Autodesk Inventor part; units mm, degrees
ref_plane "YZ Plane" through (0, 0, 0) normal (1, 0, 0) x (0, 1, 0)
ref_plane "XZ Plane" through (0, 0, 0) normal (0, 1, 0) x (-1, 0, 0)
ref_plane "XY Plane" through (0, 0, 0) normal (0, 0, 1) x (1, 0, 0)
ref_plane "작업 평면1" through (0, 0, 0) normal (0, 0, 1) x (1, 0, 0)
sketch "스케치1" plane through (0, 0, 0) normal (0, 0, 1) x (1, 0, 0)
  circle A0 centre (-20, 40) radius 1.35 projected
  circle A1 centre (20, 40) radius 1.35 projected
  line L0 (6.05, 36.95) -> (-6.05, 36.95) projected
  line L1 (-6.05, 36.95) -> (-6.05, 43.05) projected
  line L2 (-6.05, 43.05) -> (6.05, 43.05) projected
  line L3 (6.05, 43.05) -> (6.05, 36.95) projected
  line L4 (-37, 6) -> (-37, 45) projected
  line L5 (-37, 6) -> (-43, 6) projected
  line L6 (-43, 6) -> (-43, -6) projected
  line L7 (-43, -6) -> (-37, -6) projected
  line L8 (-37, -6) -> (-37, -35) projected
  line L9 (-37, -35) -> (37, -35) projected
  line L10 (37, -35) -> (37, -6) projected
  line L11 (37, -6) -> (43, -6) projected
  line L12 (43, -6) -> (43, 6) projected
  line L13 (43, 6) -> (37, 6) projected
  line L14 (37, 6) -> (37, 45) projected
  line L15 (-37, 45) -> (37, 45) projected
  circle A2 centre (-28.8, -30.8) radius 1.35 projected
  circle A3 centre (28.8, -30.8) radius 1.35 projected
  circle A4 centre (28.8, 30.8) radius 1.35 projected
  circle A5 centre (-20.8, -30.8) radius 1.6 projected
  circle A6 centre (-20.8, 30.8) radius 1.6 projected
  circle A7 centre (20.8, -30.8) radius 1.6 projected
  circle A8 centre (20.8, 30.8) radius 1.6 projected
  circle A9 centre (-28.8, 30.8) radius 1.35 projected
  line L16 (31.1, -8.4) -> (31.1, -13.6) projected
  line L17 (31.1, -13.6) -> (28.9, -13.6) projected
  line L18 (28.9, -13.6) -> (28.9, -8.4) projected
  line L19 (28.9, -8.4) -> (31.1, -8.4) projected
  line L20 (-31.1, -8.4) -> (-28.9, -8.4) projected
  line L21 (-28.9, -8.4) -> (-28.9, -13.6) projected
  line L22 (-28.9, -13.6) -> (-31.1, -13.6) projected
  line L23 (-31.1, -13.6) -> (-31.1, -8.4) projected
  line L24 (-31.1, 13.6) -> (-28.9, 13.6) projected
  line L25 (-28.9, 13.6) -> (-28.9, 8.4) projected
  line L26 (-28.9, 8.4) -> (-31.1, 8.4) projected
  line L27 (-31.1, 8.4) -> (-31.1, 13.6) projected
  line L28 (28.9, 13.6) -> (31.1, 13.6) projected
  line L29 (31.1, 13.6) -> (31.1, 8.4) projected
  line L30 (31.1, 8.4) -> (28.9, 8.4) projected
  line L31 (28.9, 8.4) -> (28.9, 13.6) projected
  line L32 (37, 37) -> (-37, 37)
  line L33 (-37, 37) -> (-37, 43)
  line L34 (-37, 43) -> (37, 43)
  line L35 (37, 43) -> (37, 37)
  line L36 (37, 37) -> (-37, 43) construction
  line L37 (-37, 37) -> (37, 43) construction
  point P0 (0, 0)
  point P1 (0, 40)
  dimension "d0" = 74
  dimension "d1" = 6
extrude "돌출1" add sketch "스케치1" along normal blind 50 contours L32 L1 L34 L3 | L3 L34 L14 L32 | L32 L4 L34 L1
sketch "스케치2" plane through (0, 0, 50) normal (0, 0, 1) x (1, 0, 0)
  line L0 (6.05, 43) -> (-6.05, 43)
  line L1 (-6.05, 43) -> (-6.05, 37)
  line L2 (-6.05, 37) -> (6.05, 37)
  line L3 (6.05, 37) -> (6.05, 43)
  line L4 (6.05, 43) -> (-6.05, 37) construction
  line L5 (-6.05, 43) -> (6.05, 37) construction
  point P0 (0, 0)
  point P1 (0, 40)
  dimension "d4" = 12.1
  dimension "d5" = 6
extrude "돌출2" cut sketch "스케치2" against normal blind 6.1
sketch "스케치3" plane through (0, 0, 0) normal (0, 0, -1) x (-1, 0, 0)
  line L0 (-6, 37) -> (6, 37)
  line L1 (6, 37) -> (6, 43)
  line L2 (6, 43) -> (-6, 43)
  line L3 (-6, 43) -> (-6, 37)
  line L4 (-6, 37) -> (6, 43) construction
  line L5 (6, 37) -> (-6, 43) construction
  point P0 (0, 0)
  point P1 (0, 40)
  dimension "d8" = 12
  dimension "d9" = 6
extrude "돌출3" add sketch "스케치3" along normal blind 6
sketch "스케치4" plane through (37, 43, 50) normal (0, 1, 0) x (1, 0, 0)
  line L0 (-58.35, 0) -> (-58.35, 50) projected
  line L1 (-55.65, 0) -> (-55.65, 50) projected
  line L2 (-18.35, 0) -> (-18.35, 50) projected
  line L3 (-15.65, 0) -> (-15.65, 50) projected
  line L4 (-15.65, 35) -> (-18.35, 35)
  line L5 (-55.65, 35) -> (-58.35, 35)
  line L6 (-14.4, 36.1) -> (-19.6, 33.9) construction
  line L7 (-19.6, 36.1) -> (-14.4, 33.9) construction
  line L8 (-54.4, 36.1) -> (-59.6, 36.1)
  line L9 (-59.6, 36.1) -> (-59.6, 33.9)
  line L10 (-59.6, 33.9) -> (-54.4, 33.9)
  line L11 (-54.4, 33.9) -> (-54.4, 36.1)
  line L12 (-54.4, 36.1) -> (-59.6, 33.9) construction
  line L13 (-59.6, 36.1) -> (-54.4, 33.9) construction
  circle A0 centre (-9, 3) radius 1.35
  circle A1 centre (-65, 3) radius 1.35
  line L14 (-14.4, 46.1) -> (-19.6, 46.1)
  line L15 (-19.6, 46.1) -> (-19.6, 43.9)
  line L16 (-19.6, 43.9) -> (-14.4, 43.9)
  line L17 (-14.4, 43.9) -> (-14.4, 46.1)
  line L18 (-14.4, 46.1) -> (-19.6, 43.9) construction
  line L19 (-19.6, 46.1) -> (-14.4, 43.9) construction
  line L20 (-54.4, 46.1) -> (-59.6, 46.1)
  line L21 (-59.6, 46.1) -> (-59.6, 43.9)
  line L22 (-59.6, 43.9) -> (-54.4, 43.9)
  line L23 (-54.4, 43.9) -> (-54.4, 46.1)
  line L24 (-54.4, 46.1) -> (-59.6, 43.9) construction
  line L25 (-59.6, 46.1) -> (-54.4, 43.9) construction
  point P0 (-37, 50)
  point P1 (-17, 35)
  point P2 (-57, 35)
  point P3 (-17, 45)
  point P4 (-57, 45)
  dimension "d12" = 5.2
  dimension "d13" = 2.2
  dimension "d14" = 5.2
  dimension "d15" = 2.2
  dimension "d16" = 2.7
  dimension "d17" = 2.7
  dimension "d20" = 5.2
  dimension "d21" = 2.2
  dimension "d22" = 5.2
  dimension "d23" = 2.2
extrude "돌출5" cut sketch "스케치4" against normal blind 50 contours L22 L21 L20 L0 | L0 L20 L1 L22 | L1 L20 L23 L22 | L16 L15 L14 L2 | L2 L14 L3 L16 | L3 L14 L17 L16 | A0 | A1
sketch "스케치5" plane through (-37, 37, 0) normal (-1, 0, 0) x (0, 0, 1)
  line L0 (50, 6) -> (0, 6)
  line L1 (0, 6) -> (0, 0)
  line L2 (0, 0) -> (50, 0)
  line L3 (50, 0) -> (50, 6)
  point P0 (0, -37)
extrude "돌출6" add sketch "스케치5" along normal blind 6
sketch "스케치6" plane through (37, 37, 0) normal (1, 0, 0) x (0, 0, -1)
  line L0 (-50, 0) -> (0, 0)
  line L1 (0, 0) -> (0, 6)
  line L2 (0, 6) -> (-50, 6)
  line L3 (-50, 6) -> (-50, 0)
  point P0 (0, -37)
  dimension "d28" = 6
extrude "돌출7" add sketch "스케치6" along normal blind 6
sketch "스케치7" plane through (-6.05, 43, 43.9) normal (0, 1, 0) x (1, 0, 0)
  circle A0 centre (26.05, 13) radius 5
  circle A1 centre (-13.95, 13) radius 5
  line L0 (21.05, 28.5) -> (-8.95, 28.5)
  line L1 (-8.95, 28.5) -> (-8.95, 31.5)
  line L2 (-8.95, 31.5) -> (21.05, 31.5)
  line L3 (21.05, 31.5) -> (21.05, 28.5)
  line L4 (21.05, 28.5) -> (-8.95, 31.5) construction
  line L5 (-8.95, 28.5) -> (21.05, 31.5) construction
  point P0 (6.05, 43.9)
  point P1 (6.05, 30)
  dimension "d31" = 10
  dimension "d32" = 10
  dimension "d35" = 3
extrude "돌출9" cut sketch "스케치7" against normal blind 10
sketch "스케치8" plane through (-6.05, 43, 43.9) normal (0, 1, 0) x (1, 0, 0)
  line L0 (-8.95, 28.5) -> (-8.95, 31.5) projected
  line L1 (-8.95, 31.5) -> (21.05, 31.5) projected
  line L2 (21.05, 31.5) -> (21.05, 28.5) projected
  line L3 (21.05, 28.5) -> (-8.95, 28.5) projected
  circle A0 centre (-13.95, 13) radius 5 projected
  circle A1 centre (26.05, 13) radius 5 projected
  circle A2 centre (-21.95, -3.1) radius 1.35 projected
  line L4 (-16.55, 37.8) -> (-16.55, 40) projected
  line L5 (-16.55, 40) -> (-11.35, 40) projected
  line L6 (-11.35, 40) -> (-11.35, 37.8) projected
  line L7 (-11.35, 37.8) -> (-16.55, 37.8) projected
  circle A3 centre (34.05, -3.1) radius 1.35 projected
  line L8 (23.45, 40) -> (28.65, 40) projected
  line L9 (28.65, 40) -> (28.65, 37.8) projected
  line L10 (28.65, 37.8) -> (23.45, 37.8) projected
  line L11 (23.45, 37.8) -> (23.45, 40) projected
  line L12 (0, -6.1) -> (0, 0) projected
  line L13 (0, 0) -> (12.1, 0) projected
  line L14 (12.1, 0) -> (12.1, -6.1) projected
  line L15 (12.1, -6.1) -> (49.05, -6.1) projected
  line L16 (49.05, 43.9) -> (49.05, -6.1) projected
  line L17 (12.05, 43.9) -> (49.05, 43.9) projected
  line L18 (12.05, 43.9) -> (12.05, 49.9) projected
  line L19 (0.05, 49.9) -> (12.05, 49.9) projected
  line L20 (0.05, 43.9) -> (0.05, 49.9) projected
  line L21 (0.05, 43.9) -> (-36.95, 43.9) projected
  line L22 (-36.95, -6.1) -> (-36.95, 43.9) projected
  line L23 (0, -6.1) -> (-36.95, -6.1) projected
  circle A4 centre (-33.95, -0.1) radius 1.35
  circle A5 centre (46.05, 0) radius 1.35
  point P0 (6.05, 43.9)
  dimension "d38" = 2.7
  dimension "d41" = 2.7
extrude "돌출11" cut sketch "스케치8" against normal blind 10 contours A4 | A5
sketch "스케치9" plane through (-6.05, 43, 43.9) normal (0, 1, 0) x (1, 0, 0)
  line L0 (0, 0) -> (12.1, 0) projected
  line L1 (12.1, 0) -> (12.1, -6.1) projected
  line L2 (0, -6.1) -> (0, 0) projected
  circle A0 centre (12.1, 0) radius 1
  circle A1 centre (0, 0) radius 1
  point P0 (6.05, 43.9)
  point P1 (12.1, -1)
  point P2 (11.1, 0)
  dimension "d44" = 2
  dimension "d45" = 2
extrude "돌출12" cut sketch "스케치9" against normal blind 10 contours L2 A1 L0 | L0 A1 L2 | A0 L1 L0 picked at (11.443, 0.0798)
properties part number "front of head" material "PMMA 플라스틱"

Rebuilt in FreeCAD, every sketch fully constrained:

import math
import FreeCAD as App
import Part
import Sketcher


def add_polygon(sketch, points):
    """Adds a closed chain of lines whose ends are joined by coincident constraints."""
    first, n = sketch.GeometryCount, len(points)
    for a, b in zip(points, points[1:] + points[:1]):
        sketch.addGeometry(Part.LineSegment(App.Vector(*a, 0), App.Vector(*b, 0)), False)
    for i in range(n):
        sketch.addConstraint(Sketcher.Constraint("Coincident", first + i, 2, first + (i + 1) % n, 1))

doc = App.newDocument("Part")
params = doc.addObject("Spreadsheet::Sheet", "Params")
for row, (alias, value) in enumerate([
    ("sketch1_width", "74 mm"),
    ("sketch1_height", "6 mm"),
    ("sketch1_diameter", "2.7 mm"),
    ("pad1_length", "50 mm"),
    ("sketch2_height", "6 mm"),
    ("sketch2_width", "12.1 mm"),
    ("pocket1_length", "6.1 mm"),
    ("sketch3_width", "12 mm"),
    ("sketch3_height", "6 mm"),
    ("pad2_length", "6 mm"),
    ("sketch4_diameter", "2.7 mm"),
    ("sketch4_width", "5.2 mm"),
    ("sketch4_height", "2.2 mm"),
    ("pocket2_length", "50 mm"),
    ("sketch5_width", "6 mm"),
    ("sketch5_height", "50 mm"),
    ("pad3_length", "6 mm"),
    ("sketch6_width", "6 mm"),
    ("sketch6_height", "50 mm"),
    ("pad4_length", "6 mm"),
    ("sketch7_diameter", "10 mm"),
    ("sketch7_height", "3 mm"),
    ("sketch7_width", "30 mm"),
    ("pocket3_length", "10 mm"),
    ("sketch8_diameter", "2.7 mm"),
    ("pocket4_length", "10 mm"),
    ("sketch9_diameter", "2 mm"),
    ("pocket5_length", "10 mm"),
], start=1):
    params.set(f"A{row}", alias)
    params.set(f"B{row}", "=" + value)
    params.setAlias(f"B{row}", alias)

body = doc.addObject("PartDesign::Body", "Body")

sketch1 = body.newObject("Sketcher::SketchObject", "Sketch")
sketch1.AttachmentSupport = (doc.getObject("XY_Plane"), [""])
sketch1.MapMode = "FlatFace"
add_polygon(sketch1, [(37, 37), (37, 43), (-37, 43), (-37, 37)])
sketch1.addGeometry(Part.Circle(App.Vector(-20, 40, 0), App.Vector(0, 0, 1), 1.4), False)
sketch1.addGeometry(Part.Circle(App.Vector(20, 40, 0), App.Vector(0, 0, 1), 1.4), False)
sketch1.addConstraint(Sketcher.Constraint("Vertical", 0))
sketch1.addConstraint(Sketcher.Constraint("Horizontal", 1))
sketch1.addConstraint(Sketcher.Constraint("Vertical", 2))
sketch1.addConstraint(Sketcher.Constraint("Horizontal", 3))
sketch1.addConstraint(Sketcher.Constraint("Equal", 4, 5))
sketch1.addConstraint(Sketcher.Constraint("Symmetric", 4, 3, 5, 3, -2))
sketch1.addConstraint(Sketcher.Constraint("DistanceX", 1, 2, 1, 1, 74.0))
sketch1.addConstraint(Sketcher.Constraint("DistanceY", 0, 1, 0, 2, 6.0))
sketch1.addConstraint(Sketcher.Constraint("Diameter", 4, 2.7))
sketch1.addConstraint(Sketcher.Constraint("DistanceX", 4, 3, -1, 1, 20.0))
sketch1.addConstraint(Sketcher.Constraint("DistanceY", -1, 1, 4, 3, 40.0))
sketch1.addConstraint(Sketcher.Constraint("DistanceX", -1, 1, 0, 2, 37.0))
sketch1.addConstraint(Sketcher.Constraint("DistanceY", -1, 1, 0, 2, 43.0))
sketch1.setExpression("Constraints[10]", "Params.sketch1_width")
sketch1.setExpression("Constraints[11]", "Params.sketch1_height")
sketch1.setExpression("Constraints[12]", "Params.sketch1_diameter")
pad1 = body.newObject("PartDesign::Pad", "Pad")
pad1.Profile = sketch1
pad1.setExpression("Length", "Params.pad1_length")

sketch2 = body.newObject("Sketcher::SketchObject", "Sketch001")
sketch2.AttachmentSupport = (doc.getObject("XY_Plane"), [""])
sketch2.MapMode = "FlatFace"
sketch2.AttachmentOffset = App.Placement(App.Vector(0, 0, 50), App.Rotation())
add_polygon(sketch2, [(6, 37), (6, 43), (-6, 43), (-6, 37)])
sketch2.addConstraint(Sketcher.Constraint("Vertical", 0))
sketch2.addConstraint(Sketcher.Constraint("Horizontal", 1))
sketch2.addConstraint(Sketcher.Constraint("Vertical", 2))
sketch2.addConstraint(Sketcher.Constraint("Horizontal", 3))
sketch2.addConstraint(Sketcher.Constraint("DistanceY", 0, 1, 0, 2, 6.0))
sketch2.addConstraint(Sketcher.Constraint("DistanceX", 1, 2, 1, 1, 12.1))
sketch2.addConstraint(Sketcher.Constraint("DistanceY", -1, 1, 0, 2, 43.0))
sketch2.addConstraint(Sketcher.Constraint("DistanceX", -1, 1, 0, 2, 6.05))
sketch2.setExpression("Constraints[8]", "Params.sketch2_height")
sketch2.setExpression("Constraints[9]", "Params.sketch2_width")
pocket1 = body.newObject("PartDesign::Pocket", "Pocket")
pocket1.Profile = sketch2
pocket1.setExpression("Length", "Params.pocket1_length")

sketch3 = body.newObject("Sketcher::SketchObject", "Sketch002")
sketch3.AttachmentSupport = (doc.getObject("XY_Plane"), [""])
sketch3.MapMode = "FlatFace"
add_polygon(sketch3, [(6, 43), (6, 37), (-6, 37), (-6, 43)])
sketch3.addConstraint(Sketcher.Constraint("Vertical", 0))
sketch3.addConstraint(Sketcher.Constraint("Horizontal", 1))
sketch3.addConstraint(Sketcher.Constraint("Vertical", 2))
sketch3.addConstraint(Sketcher.Constraint("Horizontal", 3))
sketch3.addConstraint(Sketcher.Constraint("DistanceX", 1, 2, 1, 1, 12.0))
sketch3.addConstraint(Sketcher.Constraint("DistanceY", 0, 2, 0, 1, 6.0))
sketch3.addConstraint(Sketcher.Constraint("DistanceX", -1, 1, 0, 2, 6.0))
sketch3.addConstraint(Sketcher.Constraint("DistanceY", -1, 1, 0, 2, 37.0))
sketch3.setExpression("Constraints[8]", "Params.sketch3_width")
sketch3.setExpression("Constraints[9]", "Params.sketch3_height")
pad2 = body.newObject("PartDesign::Pad", "Pad001")
pad2.Profile = sketch3
pad2.setExpression("Length", "Params.pad2_length")
pad2.Reversed = True

sketch4 = body.newObject("Sketcher::SketchObject", "Sketch003")
sketch4.AttachmentSupport = (doc.getObject("XZ_Plane"), [""])
sketch4.MapMode = "FlatFace"
sketch4.AttachmentOffset = App.Placement(App.Vector(0, 0, -43), App.Rotation())
add_polygon(sketch4, [(-22.6, 6.1), (-17.4, 6.1), (-17.4, 3.9), (-22.6, 3.9)])
add_polygon(sketch4, [(17.4, 6.1), (22.6, 6.1), (22.6, 3.9), (17.4, 3.9)])
sketch4.addGeometry(Part.Circle(App.Vector(28, 47, 0), App.Vector(0, 0, 1), 1.4), False)
sketch4.addGeometry(Part.Circle(App.Vector(-28, 47, 0), App.Vector(0, 0, 1), 1.4), False)
sketch4.addConstraint(Sketcher.Constraint("Horizontal", 0))
sketch4.addConstraint(Sketcher.Constraint("Vertical", 1))
sketch4.addConstraint(Sketcher.Constraint("Horizontal", 2))
sketch4.addConstraint(Sketcher.Constraint("Vertical", 3))
sketch4.addConstraint(Sketcher.Constraint("Horizontal", 4))
sketch4.addConstraint(Sketcher.Constraint("Vertical", 5))
sketch4.addConstraint(Sketcher.Constraint("Horizontal", 6))
sketch4.addConstraint(Sketcher.Constraint("Vertical", 7))
sketch4.addConstraint(Sketcher.Constraint("Equal", 8, 9))
sketch4.addConstraint(Sketcher.Constraint("Symmetric", 8, 3, 9, 3, -2))
sketch4.addConstraint(Sketcher.Constraint("Symmetric", 3, 2, 4, 2, -2))
sketch4.addConstraint(Sketcher.Constraint("Symmetric", 1, 2, 6, 2, -2))
sketch4.addConstraint(Sketcher.Constraint("Diameter", 8, 2.7))
sketch4.addConstraint(Sketcher.Constraint("DistanceX", 0, 1, 0, 2, 5.2))
sketch4.addConstraint(Sketcher.Constraint("DistanceY", 1, 2, 1, 1, 2.2))
sketch4.addConstraint(Sketcher.Constraint("DistanceX", -1, 1, 8, 3, 28.0))
sketch4.addConstraint(Sketcher.Constraint("DistanceY", -1, 1, 8, 3, 47.0))
sketch4.addConstraint(Sketcher.Constraint("DistanceX", 0, 2, 4, 2, 40.0))
sketch4.addConstraint(Sketcher.Constraint("DistanceY", -1, 1, 0, 2, 6.1))
sketch4.setExpression("Constraints[20]", "Params.sketch4_diameter")
sketch4.setExpression("Constraints[21]", "Params.sketch4_width")
sketch4.setExpression("Constraints[22]", "Params.sketch4_height")
pocket2 = body.newObject("PartDesign::Pocket", "Pocket001")
pocket2.Profile = sketch4
pocket2.setExpression("Length", "Params.pocket2_length")
pocket2.Reversed = True

sketch5 = body.newObject("Sketcher::SketchObject", "Sketch004")
sketch5.AttachmentSupport = (doc.getObject("YZ_Plane"), [""])
sketch5.MapMode = "FlatFace"
sketch5.AttachmentOffset = App.Placement(App.Vector(0, 0, -37), App.Rotation())
add_polygon(sketch5, [(37, 50), (43, 50), (43, 0), (37, 0)])
sketch5.addConstraint(Sketcher.Constraint("Horizontal", 0))
sketch5.addConstraint(Sketcher.Constraint("Vertical", 1))
sketch5.addConstraint(Sketcher.Constraint("Horizontal", 2))
sketch5.addConstraint(Sketcher.Constraint("Vertical", 3))
sketch5.addConstraint(Sketcher.Constraint("PointOnObject", 1, 2, -1))
sketch5.addConstraint(Sketcher.Constraint("DistanceX", 0, 1, 0, 2, 6.0))
sketch5.addConstraint(Sketcher.Constraint("DistanceY", 1, 2, 1, 1, 50.0))
sketch5.addConstraint(Sketcher.Constraint("DistanceX", -1, 1, 0, 2, 43.0))
sketch5.setExpression("Constraints[9]", "Params.sketch5_width")
sketch5.setExpression("Constraints[10]", "Params.sketch5_height")
pad3 = body.newObject("PartDesign::Pad", "Pad002")
pad3.Profile = sketch5
pad3.setExpression("Length", "Params.pad3_length")
pad3.Reversed = True

sketch6 = body.newObject("Sketcher::SketchObject", "Sketch005")
sketch6.AttachmentSupport = (doc.getObject("YZ_Plane"), [""])
sketch6.MapMode = "FlatFace"
sketch6.AttachmentOffset = App.Placement(App.Vector(0, 0, 37), App.Rotation())
add_polygon(sketch6, [(43, 50), (37, 50), (37, 0), (43, 0)])
sketch6.addConstraint(Sketcher.Constraint("Horizontal", 0))
sketch6.addConstraint(Sketcher.Constraint("Vertical", 1))
sketch6.addConstraint(Sketcher.Constraint("Horizontal", 2))
sketch6.addConstraint(Sketcher.Constraint("Vertical", 3))
sketch6.addConstraint(Sketcher.Constraint("PointOnObject", 1, 2, -1))
sketch6.addConstraint(Sketcher.Constraint("DistanceX", 0, 2, 0, 1, 6.0))
sketch6.addConstraint(Sketcher.Constraint("DistanceY", 1, 2, 1, 1, 50.0))
sketch6.addConstraint(Sketcher.Constraint("DistanceX", -1, 1, 0, 2, 37.0))
sketch6.setExpression("Constraints[9]", "Params.sketch6_width")
sketch6.setExpression("Constraints[10]", "Params.sketch6_height")
pad4 = body.newObject("PartDesign::Pad", "Pad003")
pad4.Profile = sketch6
pad4.setExpression("Length", "Params.pad4_length")

sketch7 = body.newObject("Sketcher::SketchObject", "Sketch006")
sketch7.AttachmentSupport = (doc.getObject("XZ_Plane"), [""])
sketch7.MapMode = "FlatFace"
sketch7.AttachmentOffset = App.Placement(App.Vector(0, 0, -43), App.Rotation())
sketch7.addGeometry(Part.Circle(App.Vector(20, 30.9, 0), App.Vector(0, 0, 1), 5), False)
sketch7.addGeometry(Part.Circle(App.Vector(-20, 30.9, 0), App.Vector(0, 0, 1), 5), False)
add_polygon(sketch7, [(-15, 15.4), (15, 15.4), (15, 12.4), (-15, 12.4)])
sketch7.addConstraint(Sketcher.Constraint("Horizontal", 2))
sketch7.addConstraint(Sketcher.Constraint("Vertical", 3))
sketch7.addConstraint(Sketcher.Constraint("Horizontal", 4))
sketch7.addConstraint(Sketcher.Constraint("Vertical", 5))
sketch7.addConstraint(Sketcher.Constraint("Equal", 0, 1))
sketch7.addConstraint(Sketcher.Constraint("Symmetric", 0, 3, 1, 3, -2))
sketch7.addConstraint(Sketcher.Constraint("Diameter", 0, 10.0))
sketch7.addConstraint(Sketcher.Constraint("DistanceY", 3, 2, 3, 1, 3.0))
sketch7.addConstraint(Sketcher.Constraint("DistanceX", 2, 1, 2, 2, 30.0))
sketch7.addConstraint(Sketcher.Constraint("DistanceX", -1, 1, 0, 3, 20.0))
sketch7.addConstraint(Sketcher.Constraint("DistanceX", -1, 1, 2, 2, 15.0))
sketch7.addConstraint(Sketcher.Constraint("DistanceY", -1, 1, 0, 3, 30.9))
sketch7.addConstraint(Sketcher.Constraint("DistanceY", -1, 1, 2, 2, 15.4))
sketch7.setExpression("Constraints[10]", "Params.sketch7_diameter")
sketch7.setExpression("Constraints[11]", "Params.sketch7_height")
sketch7.setExpression("Constraints[12]", "Params.sketch7_width")
pocket3 = body.newObject("PartDesign::Pocket", "Pocket002")
pocket3.Profile = sketch7
pocket3.setExpression("Length", "Params.pocket3_length")
pocket3.Reversed = True

sketch8 = body.newObject("Sketcher::SketchObject", "Sketch007")
sketch8.AttachmentSupport = (doc.getObject("XZ_Plane"), [""])
sketch8.MapMode = "FlatFace"
sketch8.AttachmentOffset = App.Placement(App.Vector(0, 0, -43), App.Rotation())
sketch8.addGeometry(Part.Circle(App.Vector(-40, 44, 0), App.Vector(0, 0, 1), 1.4), False)
sketch8.addGeometry(Part.Circle(App.Vector(40, 43.9, 0), App.Vector(0, 0, 1), 1.4), False)
sketch8.addConstraint(Sketcher.Constraint("Equal", 0, 1))
sketch8.addConstraint(Sketcher.Constraint("Diameter", 0, 2.7))
sketch8.addConstraint(Sketcher.Constraint("DistanceX", 0, 3, -1, 1, 40.0))
sketch8.addConstraint(Sketcher.Constraint("DistanceY", -1, 1, 0, 3, 44.0))
sketch8.addConstraint(Sketcher.Constraint("DistanceX", -1, 1, 1, 3, 40.0))
sketch8.addConstraint(Sketcher.Constraint("DistanceY", -1, 1, 1, 3, 43.9))
sketch8.setExpression("Constraints[1]", "Params.sketch8_diameter")
pocket4 = body.newObject("PartDesign::Pocket", "Pocket003")
pocket4.Profile = sketch8
pocket4.setExpression("Length", "Params.pocket4_length")
pocket4.Reversed = True

sketch9 = body.newObject("Sketcher::SketchObject", "Sketch008")
sketch9.AttachmentSupport = (doc.getObject("XZ_Plane"), [""])
sketch9.MapMode = "FlatFace"
sketch9.AttachmentOffset = App.Placement(App.Vector(0, 0, -43), App.Rotation())
sketch9.addGeometry(Part.Circle(App.Vector(-6, 43.9, 0), App.Vector(0, 0, 1), 1), False)
sketch9.addGeometry(Part.ArcOfCircle(Part.Circle(App.Vector(6, 43.9, 0), App.Vector(0, 0, 1), 1), math.radians(180), math.radians(450)), False)
sketch9.addGeometry(Part.LineSegment(App.Vector(5, 43.9, 0), App.Vector(6, 43.9, 0)), False)
sketch9.addGeometry(Part.LineSegment(App.Vector(6, 43.9, 0), App.Vector(6, 44.9, 0)), False)
sketch9.addConstraint(Sketcher.Constraint("Coincident", 1, 1, 2, 1))
sketch9.addConstraint(Sketcher.Constraint("Coincident", 2, 2, 3, 1))
sketch9.addConstraint(Sketcher.Constraint("Coincident", 3, 2, 1, 2))
sketch9.addConstraint(Sketcher.Constraint("Horizontal", 2))
sketch9.addConstraint(Sketcher.Constraint("Vertical", 3))
sketch9.addConstraint(Sketcher.Constraint("Coincident", 2, 2, 1, 3))
sketch9.addConstraint(Sketcher.Constraint("Equal", 0, 1))
sketch9.addConstraint(Sketcher.Constraint("Symmetric", 0, 3, 1, 3, -2))
sketch9.addConstraint(Sketcher.Constraint("Diameter", 0, 2.0))
sketch9.addConstraint(Sketcher.Constraint("DistanceY", -1, 1, 0, 3, 43.9))
sketch9.addConstraint(Sketcher.Constraint("DistanceX", 0, 3, 1, 3, 12.1))
sketch9.setExpression("Constraints[8]", "Params.sketch9_diameter")
pocket5 = body.newObject("PartDesign::Pocket", "Pocket004")
pocket5.Profile = sketch9
pocket5.setExpression("Length", "Params.pocket5_length")
pocket5.Reversed = True

doc.recompute()
